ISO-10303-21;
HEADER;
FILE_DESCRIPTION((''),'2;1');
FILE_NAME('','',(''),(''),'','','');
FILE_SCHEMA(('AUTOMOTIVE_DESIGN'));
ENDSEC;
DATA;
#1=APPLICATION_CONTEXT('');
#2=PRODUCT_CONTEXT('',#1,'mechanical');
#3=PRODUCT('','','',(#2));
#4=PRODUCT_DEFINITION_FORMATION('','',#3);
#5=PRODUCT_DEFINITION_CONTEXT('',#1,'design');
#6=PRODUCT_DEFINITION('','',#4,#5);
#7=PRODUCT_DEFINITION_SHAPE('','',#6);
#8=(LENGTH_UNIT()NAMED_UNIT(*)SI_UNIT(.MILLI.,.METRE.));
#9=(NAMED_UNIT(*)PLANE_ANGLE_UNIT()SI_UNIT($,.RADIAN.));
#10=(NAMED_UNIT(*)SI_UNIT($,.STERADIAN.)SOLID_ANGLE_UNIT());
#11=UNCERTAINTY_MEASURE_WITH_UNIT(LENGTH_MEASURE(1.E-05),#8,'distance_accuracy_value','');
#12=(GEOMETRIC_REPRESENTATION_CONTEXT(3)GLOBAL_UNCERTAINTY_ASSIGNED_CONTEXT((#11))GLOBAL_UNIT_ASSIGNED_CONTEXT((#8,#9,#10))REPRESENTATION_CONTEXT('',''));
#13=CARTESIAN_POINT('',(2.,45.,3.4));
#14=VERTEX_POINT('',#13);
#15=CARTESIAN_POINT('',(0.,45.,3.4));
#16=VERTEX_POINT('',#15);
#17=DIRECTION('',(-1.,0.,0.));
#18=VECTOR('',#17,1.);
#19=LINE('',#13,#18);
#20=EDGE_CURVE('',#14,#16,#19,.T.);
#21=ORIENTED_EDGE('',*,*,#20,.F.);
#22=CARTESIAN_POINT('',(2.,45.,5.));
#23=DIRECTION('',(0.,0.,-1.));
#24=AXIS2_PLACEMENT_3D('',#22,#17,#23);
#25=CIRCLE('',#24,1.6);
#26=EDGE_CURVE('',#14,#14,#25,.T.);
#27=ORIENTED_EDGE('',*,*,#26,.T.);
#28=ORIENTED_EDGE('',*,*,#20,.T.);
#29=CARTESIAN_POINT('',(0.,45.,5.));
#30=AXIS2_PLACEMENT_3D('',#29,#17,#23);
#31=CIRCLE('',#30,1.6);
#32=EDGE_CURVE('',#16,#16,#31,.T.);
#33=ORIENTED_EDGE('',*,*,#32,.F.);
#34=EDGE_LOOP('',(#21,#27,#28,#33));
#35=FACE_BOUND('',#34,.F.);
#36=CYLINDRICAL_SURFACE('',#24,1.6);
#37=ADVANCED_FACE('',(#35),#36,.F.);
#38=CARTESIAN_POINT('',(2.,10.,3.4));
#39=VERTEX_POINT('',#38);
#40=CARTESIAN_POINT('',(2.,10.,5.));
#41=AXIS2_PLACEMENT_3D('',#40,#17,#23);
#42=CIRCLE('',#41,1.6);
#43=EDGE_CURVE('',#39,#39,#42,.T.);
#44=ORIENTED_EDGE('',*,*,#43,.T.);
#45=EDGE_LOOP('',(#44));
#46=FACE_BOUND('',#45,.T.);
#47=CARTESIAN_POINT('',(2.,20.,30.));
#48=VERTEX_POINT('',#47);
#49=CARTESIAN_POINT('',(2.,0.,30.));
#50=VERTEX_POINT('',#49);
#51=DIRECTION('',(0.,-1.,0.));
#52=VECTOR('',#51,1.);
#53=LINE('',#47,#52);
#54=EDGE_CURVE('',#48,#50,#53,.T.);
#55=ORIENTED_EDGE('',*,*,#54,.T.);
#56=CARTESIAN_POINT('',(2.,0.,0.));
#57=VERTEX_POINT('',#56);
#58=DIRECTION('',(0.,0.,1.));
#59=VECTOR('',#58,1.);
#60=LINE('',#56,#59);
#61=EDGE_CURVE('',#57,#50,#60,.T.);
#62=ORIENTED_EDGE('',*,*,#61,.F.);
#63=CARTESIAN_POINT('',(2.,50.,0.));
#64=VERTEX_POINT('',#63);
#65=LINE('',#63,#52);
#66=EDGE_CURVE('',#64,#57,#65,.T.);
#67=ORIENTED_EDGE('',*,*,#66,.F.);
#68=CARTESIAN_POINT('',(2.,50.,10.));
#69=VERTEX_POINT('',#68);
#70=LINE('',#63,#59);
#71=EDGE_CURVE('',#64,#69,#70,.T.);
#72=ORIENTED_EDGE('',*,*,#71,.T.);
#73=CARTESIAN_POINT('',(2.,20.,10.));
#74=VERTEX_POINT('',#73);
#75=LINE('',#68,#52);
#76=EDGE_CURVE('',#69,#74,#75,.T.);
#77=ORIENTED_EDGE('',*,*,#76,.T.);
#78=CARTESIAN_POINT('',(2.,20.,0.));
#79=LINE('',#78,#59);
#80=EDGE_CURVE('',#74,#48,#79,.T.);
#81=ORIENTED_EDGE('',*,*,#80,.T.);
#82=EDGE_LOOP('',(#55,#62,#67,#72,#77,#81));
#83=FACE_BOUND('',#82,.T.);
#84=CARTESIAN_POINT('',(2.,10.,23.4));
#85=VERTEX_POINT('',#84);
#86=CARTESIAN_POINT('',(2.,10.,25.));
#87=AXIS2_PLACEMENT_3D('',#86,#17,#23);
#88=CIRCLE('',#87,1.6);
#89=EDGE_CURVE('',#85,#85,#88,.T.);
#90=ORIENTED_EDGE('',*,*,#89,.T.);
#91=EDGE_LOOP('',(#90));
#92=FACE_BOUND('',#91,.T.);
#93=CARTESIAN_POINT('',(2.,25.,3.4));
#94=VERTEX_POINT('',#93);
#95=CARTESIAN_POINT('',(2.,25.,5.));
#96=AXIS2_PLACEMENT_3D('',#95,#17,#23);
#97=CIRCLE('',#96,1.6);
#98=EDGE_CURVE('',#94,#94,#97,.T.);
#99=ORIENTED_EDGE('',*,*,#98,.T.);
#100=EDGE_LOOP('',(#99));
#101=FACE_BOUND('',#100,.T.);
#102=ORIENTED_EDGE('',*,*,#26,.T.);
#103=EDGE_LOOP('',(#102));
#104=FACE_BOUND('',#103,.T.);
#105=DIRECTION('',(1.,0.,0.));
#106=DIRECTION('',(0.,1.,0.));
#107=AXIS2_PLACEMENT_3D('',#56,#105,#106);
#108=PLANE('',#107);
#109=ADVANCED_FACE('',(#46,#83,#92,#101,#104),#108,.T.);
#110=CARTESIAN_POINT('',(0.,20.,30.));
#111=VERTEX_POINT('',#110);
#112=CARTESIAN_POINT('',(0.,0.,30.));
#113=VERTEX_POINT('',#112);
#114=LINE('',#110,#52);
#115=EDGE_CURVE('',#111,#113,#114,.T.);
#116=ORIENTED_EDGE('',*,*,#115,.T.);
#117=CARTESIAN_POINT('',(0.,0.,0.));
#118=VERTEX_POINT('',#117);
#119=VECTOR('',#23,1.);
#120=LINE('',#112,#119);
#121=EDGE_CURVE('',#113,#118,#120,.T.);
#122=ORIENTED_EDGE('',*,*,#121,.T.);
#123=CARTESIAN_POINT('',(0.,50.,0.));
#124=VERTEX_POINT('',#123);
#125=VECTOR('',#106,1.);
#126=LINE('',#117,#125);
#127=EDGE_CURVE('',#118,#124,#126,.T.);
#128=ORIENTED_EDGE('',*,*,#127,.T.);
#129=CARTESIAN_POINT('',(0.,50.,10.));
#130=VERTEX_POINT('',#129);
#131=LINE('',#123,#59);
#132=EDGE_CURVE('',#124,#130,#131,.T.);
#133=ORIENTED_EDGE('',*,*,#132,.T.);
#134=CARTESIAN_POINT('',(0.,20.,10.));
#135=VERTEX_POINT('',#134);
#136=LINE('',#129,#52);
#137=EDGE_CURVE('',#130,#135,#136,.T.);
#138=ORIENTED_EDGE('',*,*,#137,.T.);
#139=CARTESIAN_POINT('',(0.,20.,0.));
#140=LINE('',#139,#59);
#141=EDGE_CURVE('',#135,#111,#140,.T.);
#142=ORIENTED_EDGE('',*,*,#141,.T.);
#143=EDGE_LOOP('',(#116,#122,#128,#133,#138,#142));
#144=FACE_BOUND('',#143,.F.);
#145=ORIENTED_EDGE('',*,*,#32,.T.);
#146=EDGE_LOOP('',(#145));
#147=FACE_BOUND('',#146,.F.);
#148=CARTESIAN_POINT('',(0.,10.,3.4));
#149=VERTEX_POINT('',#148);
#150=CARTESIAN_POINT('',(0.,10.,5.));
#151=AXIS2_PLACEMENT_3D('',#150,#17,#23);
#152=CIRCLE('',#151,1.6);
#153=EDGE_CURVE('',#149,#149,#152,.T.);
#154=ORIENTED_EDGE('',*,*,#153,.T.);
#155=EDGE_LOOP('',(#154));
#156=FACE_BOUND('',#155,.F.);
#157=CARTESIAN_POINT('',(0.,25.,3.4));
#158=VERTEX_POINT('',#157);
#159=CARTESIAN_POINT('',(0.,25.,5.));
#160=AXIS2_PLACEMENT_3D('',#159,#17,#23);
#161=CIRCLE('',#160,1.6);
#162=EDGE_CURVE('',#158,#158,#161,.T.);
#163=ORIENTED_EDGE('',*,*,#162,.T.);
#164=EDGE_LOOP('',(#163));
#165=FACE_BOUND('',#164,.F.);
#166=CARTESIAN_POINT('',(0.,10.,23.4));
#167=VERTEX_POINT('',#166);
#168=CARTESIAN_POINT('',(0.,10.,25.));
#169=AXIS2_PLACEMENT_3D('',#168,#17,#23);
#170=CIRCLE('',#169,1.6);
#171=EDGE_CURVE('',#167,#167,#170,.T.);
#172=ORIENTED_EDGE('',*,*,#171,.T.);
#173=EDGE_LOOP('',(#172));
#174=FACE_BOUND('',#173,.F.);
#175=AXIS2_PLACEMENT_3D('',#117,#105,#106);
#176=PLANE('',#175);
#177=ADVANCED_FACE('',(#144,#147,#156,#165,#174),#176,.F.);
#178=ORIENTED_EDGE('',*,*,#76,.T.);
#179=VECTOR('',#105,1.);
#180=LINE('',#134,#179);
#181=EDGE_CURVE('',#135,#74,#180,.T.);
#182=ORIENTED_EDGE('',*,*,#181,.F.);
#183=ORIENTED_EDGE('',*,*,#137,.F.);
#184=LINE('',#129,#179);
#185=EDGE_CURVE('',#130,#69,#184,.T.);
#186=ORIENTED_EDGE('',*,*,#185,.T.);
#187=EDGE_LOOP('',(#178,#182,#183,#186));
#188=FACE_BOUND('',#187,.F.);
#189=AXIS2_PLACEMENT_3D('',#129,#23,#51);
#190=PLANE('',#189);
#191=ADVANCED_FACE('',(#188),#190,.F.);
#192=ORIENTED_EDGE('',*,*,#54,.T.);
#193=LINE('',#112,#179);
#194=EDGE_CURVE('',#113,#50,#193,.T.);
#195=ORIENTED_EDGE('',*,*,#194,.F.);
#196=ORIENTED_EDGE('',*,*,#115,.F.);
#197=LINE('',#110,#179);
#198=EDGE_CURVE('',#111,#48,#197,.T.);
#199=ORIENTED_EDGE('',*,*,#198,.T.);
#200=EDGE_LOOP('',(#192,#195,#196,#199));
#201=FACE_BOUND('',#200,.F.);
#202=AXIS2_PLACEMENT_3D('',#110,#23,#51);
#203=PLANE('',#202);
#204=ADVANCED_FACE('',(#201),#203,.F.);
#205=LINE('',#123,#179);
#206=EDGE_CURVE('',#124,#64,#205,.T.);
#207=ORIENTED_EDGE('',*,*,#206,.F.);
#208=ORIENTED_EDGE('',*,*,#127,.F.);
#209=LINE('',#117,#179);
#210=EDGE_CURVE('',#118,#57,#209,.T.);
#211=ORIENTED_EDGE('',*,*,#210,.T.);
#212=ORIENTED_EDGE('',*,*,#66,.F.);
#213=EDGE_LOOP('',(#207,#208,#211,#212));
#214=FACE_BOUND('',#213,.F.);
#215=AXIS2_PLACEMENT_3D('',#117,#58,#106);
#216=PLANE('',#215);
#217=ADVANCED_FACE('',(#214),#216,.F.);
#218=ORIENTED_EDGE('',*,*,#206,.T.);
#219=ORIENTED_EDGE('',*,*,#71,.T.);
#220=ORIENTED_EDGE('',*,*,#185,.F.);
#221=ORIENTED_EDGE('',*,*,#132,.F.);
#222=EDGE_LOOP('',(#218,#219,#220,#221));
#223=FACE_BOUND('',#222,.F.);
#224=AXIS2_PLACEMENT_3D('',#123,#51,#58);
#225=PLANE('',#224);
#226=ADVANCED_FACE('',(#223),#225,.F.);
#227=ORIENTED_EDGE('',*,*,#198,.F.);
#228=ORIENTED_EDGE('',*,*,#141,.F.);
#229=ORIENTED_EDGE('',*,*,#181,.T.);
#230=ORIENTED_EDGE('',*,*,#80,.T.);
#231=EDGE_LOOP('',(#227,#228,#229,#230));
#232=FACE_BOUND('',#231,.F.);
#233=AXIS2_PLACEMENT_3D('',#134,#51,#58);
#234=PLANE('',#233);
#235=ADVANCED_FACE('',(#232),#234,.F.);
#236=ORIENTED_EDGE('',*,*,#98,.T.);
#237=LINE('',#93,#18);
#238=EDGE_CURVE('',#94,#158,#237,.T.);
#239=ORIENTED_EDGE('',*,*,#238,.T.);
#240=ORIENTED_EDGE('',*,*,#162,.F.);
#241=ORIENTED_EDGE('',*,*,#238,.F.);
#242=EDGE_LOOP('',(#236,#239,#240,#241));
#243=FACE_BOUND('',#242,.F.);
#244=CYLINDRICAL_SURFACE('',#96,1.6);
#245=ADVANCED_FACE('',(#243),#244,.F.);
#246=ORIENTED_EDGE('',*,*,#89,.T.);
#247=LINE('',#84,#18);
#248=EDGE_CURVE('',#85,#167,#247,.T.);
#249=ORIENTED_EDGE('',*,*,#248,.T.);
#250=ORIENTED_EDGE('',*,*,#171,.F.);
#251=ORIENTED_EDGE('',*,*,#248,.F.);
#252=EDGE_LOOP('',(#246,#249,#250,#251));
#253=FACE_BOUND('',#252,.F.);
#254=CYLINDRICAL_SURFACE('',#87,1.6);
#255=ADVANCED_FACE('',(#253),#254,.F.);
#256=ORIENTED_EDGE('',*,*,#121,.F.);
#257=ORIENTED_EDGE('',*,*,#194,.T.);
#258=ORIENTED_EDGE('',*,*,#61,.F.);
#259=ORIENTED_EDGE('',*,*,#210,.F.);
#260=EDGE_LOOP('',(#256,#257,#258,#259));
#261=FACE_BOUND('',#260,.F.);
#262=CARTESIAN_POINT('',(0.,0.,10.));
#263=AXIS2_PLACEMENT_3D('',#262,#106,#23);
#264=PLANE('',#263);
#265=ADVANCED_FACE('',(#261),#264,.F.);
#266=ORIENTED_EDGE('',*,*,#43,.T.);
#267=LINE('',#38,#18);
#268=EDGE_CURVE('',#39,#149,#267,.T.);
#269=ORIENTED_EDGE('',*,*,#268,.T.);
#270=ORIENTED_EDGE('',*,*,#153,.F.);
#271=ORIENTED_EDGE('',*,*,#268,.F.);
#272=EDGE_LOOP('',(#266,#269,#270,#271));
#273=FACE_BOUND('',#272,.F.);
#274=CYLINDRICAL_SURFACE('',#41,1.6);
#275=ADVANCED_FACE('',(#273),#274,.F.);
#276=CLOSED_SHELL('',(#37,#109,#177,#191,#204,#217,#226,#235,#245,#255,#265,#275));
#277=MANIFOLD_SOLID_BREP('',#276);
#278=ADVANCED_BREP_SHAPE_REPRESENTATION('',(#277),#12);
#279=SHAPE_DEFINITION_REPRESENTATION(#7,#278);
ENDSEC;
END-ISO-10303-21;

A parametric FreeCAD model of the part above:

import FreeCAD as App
import Part
import Sketcher

V = App.Vector
Q = App.Units.Quantity

doc = App.newDocument("Part")
params = doc.addObject("Spreadsheet::Sheet", "Params")
for row, (alias, value) in enumerate([
    ("sketch1_width", "30 mm"),
    ("sketch1_width2", "20 mm"),
    ("pad1_length", "2 mm"),
    ("sketch2_diameter", "3.2 mm"),
    ("hole_diameter", "3.2 mm"),
], start=1):
    params.set(f"A{row}", alias)
    params.set(f"B{row}", "=" + value)
    params.setAlias(f"B{row}", alias)

body = doc.addObject("PartDesign::Body", "Body")

sketch1 = doc.addObject("Sketcher::SketchObject", "Sketch")
body.addObject(sketch1)
sketch1.AttachmentSupport = (doc.YZ_Plane, [""])
sketch1.MapMode = "FlatFace"
sketch1.addGeometry(Part.LineSegment(V(0, 0, 0), V(50, 0, 0)), False)
sketch1.addGeometry(Part.LineSegment(V(50, 0, 0), V(50, 10, 0)), False)
sketch1.addGeometry(Part.LineSegment(V(50, 10, 0), V(20, 10, 0)), False)
sketch1.addGeometry(Part.LineSegment(V(20, 10, 0), V(20, 30, 0)), False)
sketch1.addGeometry(Part.LineSegment(V(20, 30, 0), V(0, 30, 0)), False)
sketch1.addGeometry(Part.LineSegment(V(0, 30, 0), V(0, 0, 0)), False)
sketch1.addConstraint(Sketcher.Constraint("Coincident", 0, 2, 1, 1))
sketch1.addConstraint(Sketcher.Constraint("Coincident", 1, 2, 2, 1))
sketch1.addConstraint(Sketcher.Constraint("Coincident", 2, 2, 3, 1))
sketch1.addConstraint(Sketcher.Constraint("Coincident", 3, 2, 4, 1))
sketch1.addConstraint(Sketcher.Constraint("Coincident", 4, 2, 5, 1))
sketch1.addConstraint(Sketcher.Constraint("Coincident", 5, 2, 0, 1))
sketch1.addConstraint(Sketcher.Constraint("Horizontal", 0))
sketch1.addConstraint(Sketcher.Constraint("Vertical", 1))
sketch1.addConstraint(Sketcher.Constraint("Horizontal", 2))
sketch1.addConstraint(Sketcher.Constraint("Vertical", 3))
sketch1.addConstraint(Sketcher.Constraint("Horizontal", 4))
sketch1.addConstraint(Sketcher.Constraint("Vertical", 5))
sketch1.addConstraint(Sketcher.Constraint("Coincident", 5, 2, -1, 1))
sketch1.addConstraint(Sketcher.Constraint("Equal", 4, 3))
sketch1.addConstraint(Sketcher.Constraint("Equal", 2, 5))
sketch1.addConstraint(Sketcher.Constraint("DistanceX", 2, 2, 2, 1, Q("30 mm")))
sketch1.addConstraint(Sketcher.Constraint("DistanceX", 4, 2, 4, 1, Q("20 mm")))
sketch1.setExpression("Constraints[15]", "Params.sketch1_width")
sketch1.setExpression("Constraints[16]", "Params.sketch1_width2")
pad1 = doc.addObject("PartDesign::Pad", "Pad")
body.addObject(pad1)
pad1.Profile = sketch1
pad1.setExpression("Length", "Params.pad1_length")

sketch2 = doc.addObject("Sketcher::SketchObject", "Sketch001")
body.addObject(sketch2)
sketch2.AttachmentSupport = (doc.YZ_Plane, [""])
sketch2.MapMode = "FlatFace"
sketch2.AttachmentOffset = App.Placement(V(0, 0, 2), App.Rotation())
sketch2.addGeometry(Part.Circle(V(10, 25, 0), V(0, 0, 1), 1.6), False)
sketch2.addGeometry(Part.Circle(V(10, 5, 0), V(0, 0, 1), 1.6), False)
sketch2.addGeometry(Part.Circle(V(25, 5, 0), V(0, 0, 1), 1.6), False)
sketch2.addGeometry(Part.Circle(V(45, 5, 0), V(0, 0, 1), 1.6), False)
sketch2.addConstraint(Sketcher.Constraint("Equal", 0, 1))
sketch2.addConstraint(Sketcher.Constraint("Equal", 1, 2))
sketch2.addConstraint(Sketcher.Constraint("Equal", 2, 3))
sketch2.addConstraint(Sketcher.Constraint("Horizontal", 1, 3, 2, 3))
sketch2.addConstraint(Sketcher.Constraint("Horizontal", 2, 3, 3, 3))
sketch2.addConstraint(Sketcher.Constraint("Vertical", 0, 3, 1, 3))
sketch2.addConstraint(Sketcher.Constraint("Diameter", 0, Q("3.2 mm")))
sketch2.addConstraint(Sketcher.Constraint("DistanceX", -1, 1, 0, 3, Q("10 mm")))
sketch2.addConstraint(Sketcher.Constraint("DistanceY", -1, 1, 0, 3, Q("25 mm")))
sketch2.addConstraint(Sketcher.Constraint("DistanceY", -1, 1, 1, 3, Q("5 mm")))
sketch2.addConstraint(Sketcher.Constraint("DistanceX", -1, 1, 2, 3, Q("25 mm")))
sketch2.addConstraint(Sketcher.Constraint("DistanceX", -1, 1, 3, 3, Q("45 mm")))
sketch2.setExpression("Constraints[6]", "Params.sketch2_diameter")
doc.recompute()
hole = doc.addObject("PartDesign::Hole", "Hole")
body.addObject(hole)
hole.Profile = sketch2
hole.ThreadType = "None"
hole.setExpression("Diameter", "Params.hole_diameter")
hole.DepthType = "ThroughAll"

doc.recompute()
